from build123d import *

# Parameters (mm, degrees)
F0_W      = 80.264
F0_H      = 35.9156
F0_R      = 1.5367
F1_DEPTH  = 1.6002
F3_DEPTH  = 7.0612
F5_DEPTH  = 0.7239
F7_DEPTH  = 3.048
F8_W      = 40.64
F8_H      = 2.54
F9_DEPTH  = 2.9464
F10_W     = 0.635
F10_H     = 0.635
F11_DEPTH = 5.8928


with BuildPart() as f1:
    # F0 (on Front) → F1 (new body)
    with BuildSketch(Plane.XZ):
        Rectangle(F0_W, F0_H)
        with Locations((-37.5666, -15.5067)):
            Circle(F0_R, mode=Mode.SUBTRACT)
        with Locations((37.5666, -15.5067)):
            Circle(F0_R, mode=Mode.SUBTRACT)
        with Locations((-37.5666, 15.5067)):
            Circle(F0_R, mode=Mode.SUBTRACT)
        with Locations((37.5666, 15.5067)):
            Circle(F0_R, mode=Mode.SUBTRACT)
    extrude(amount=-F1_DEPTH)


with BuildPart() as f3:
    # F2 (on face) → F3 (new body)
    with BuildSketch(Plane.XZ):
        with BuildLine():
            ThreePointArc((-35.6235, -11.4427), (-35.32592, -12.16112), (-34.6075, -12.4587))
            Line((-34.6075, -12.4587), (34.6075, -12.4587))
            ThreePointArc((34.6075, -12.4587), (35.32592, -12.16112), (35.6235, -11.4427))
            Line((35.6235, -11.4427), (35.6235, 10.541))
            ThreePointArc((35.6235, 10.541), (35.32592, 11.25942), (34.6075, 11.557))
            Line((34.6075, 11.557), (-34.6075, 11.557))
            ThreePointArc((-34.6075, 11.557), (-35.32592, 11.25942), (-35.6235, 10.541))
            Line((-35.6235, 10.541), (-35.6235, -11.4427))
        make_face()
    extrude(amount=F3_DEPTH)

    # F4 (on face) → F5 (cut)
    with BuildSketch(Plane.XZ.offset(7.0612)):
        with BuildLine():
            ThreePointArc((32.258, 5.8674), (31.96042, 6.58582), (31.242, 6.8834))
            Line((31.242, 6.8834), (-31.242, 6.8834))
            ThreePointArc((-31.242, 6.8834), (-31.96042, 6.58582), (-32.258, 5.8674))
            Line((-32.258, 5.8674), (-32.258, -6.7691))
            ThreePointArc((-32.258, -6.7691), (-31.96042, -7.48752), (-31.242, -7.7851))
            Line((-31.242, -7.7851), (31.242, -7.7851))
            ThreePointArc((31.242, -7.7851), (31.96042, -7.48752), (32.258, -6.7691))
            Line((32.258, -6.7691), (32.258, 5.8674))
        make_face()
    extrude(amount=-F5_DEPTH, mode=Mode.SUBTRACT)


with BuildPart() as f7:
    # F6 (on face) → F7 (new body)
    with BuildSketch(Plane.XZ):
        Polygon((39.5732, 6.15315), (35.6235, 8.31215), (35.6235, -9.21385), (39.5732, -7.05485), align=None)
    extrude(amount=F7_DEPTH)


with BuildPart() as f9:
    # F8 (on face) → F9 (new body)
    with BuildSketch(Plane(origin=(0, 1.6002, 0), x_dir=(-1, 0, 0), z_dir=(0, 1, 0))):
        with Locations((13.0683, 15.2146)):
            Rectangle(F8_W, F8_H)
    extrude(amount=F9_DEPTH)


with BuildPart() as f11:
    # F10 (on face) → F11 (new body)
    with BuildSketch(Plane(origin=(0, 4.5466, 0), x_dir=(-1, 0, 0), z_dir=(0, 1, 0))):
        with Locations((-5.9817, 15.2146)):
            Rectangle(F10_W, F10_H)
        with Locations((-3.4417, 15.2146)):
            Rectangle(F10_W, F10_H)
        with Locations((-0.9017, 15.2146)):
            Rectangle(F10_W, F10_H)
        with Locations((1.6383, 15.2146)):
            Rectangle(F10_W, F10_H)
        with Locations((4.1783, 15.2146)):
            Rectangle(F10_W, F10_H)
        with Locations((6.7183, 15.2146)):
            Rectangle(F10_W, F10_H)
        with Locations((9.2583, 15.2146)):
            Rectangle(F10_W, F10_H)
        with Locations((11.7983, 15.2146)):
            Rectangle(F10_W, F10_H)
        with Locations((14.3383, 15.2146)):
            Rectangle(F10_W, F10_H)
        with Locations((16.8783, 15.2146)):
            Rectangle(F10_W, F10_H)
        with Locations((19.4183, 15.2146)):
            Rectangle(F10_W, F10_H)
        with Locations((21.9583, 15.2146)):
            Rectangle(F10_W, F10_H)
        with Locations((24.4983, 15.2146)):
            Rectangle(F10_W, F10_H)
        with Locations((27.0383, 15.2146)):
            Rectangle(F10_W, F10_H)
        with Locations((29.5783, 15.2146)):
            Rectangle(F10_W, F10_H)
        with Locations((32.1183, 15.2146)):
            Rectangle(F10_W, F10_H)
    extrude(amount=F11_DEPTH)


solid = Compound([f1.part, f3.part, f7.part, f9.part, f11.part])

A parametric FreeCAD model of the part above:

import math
import FreeCAD as App
import Part
import Sketcher

V = App.Vector
Q = App.Units.Quantity


def add_polygon(sketch, points):
    """Adds a closed chain of lines whose ends are joined by coincident constraints."""
    first, n = sketch.GeometryCount, len(points)
    for a, b in zip(points, points[1:] + points[:1]):
        sketch.addGeometry(Part.LineSegment(App.Vector(*a, 0), App.Vector(*b, 0)), False)
    for i in range(n):
        sketch.addConstraint(Sketcher.Constraint("Coincident", first + i, 2, first + (i + 1) % n, 1))

doc = App.newDocument("Part")
params = doc.addObject("Spreadsheet::Sheet", "Params")
for row, (alias, value) in enumerate([
    ("sketch1_diameter", "0.121 in"),
    ("sketch1_width", "3.16 in"),
    ("sketch1_height", "1.414 in"),
    ("pad1_length", "0.063 in"),
    ("sketch2_radius", "0.0400001 in"),
    ("sketch2_width", "2.725 in"),
    ("pad2_length", "0.278 in"),
    ("sketch3_radius", "0.0400001 in"),
    ("sketch3_width", "2.46 in"),
    ("pocket1_length", "0.0285 in"),
    ("sketch4_height", "0.69 in"),
    ("sketch4_height2", "0.52 in"),
    ("pad3_length", "0.12 in"),
    ("sketch5_width", "1.6 in"),
    ("sketch5_height", "0.1 in"),
    ("pad4_length", "0.116 in"),
    ("sketch6_width", "0.025 in"),
    ("pad5_length", "0.232 in"),
], start=1):
    params.set(f"A{row}", alias)
    params.set(f"B{row}", "=" + value)
    params.setAlias(f"B{row}", alias)

body = doc.addObject("PartDesign::Body", "Body")

# Sketch on XZ plane
sketch1 = body.newObject("Sketcher::SketchObject", "Sketch")
sketch1.AttachmentSupport = (doc.getObject("XZ_Plane"), [""])
sketch1.MapMode = "FlatFace"
add_polygon(sketch1, [(-40.1, 18), (-40.1, -18), (40.1, -18), (40.1, 18)])  # lines 0-3
sketch1.addGeometry(Part.Circle(V(-37.6, -15.5, 0), V(0, 0, 1), 1.5), False)  # 4
sketch1.addGeometry(Part.Circle(V(37.6, -15.5, 0), V(0, 0, 1), 1.5), False)  # 5
sketch1.addGeometry(Part.Circle(V(-37.6, 15.5, 0), V(0, 0, 1), 1.5), False)  # 6
sketch1.addGeometry(Part.Circle(V(37.6, 15.5, 0), V(0, 0, 1), 1.5), False)  # 7
sketch1.addConstraint(Sketcher.Constraint("Vertical", 0))
sketch1.addConstraint(Sketcher.Constraint("Horizontal", 1))
sketch1.addConstraint(Sketcher.Constraint("Vertical", 2))
sketch1.addConstraint(Sketcher.Constraint("Horizontal", 3))
sketch1.addConstraint(Sketcher.Constraint("Equal", 4, 5))
sketch1.addConstraint(Sketcher.Constraint("Equal", 5, 6))
sketch1.addConstraint(Sketcher.Constraint("Equal", 6, 7))
sketch1.addConstraint(Sketcher.Constraint("Symmetric", 5, 3, 6, 3, -1, 1))
sketch1.addConstraint(Sketcher.Constraint("Symmetric", 4, 3, 7, 3, -1, 1))
sketch1.addConstraint(Sketcher.Constraint("Symmetric", 0, 2, 2, 2, -1, 1))
sketch1.addConstraint(Sketcher.Constraint("Symmetric", 4, 3, 5, 3, -2))
sketch1.addConstraint(Sketcher.Constraint("Diameter", 4, Q("0.121 in")))
sketch1.addConstraint(Sketcher.Constraint("DistanceX", 1, 1, 1, 2, Q("3.16 in")))
sketch1.addConstraint(Sketcher.Constraint("DistanceY", 0, 2, 0, 1, Q("1.414 in")))
sketch1.addConstraint(Sketcher.Constraint("DistanceX", 4, 3, -1, 1, Q("1.479 in")))
sketch1.addConstraint(Sketcher.Constraint("DistanceY", 4, 3, 6, 3, Q("1.221 in")))
sketch1.setExpression("Constraints[15]", "Params.sketch1_diameter")
sketch1.setExpression("Constraints[16]", "Params.sketch1_width")
sketch1.setExpression("Constraints[17]", "Params.sketch1_height")
pad1 = body.newObject("PartDesign::Pad", "Pad")
pad1.Profile = sketch1
pad1.setExpression("Length", "Params.pad1_length")
pad1.Reversed = True
body2 = doc.addObject("PartDesign::Body", "Body001")

# Sketch on XZ plane
sketch2 = body2.newObject("Sketcher::SketchObject", "Sketch001")
sketch2.AttachmentSupport = (doc.getObject("XZ_Plane001"), [""])
sketch2.MapMode = "FlatFace"
sketch2.addGeometry(Part.ArcOfCircle(Part.Circle(V(-34.6, -11.4, 0), V(0, 0, 1), 1), math.radians(-180), math.radians(-90)), False)
sketch2.addGeometry(Part.LineSegment(V(-34.6, -12.5, 0), V(34.6, -12.5, 0)), False)
sketch2.addGeometry(Part.ArcOfCircle(Part.Circle(V(34.6, -11.4, 0), V(0, 0, 1), 1), math.radians(-90), math.radians(0)), False)
sketch2.addGeometry(Part.LineSegment(V(35.6, -11.4, 0), V(35.6, 10.5, 0)), False)
sketch2.addGeometry(Part.ArcOfCircle(Part.Circle(V(34.6, 10.5, 0), V(0, 0, 1), 1), math.radians(0), math.radians(90)), False)
sketch2.addGeometry(Part.LineSegment(V(34.6, 11.6, 0), V(-34.6, 11.6, 0)), False)
sketch2.addGeometry(Part.ArcOfCircle(Part.Circle(V(-34.6, 10.5, 0), V(0, 0, 1), 1), math.radians(90), math.radians(180)), False)
sketch2.addGeometry(Part.LineSegment(V(-35.6, 10.5, 0), V(-35.6, -11.4, 0)), False)
sketch2.addConstraint(Sketcher.Constraint("Tangent", 0, 2, 1, 1))
sketch2.addConstraint(Sketcher.Constraint("Tangent", 1, 2, 2, 1))
sketch2.addConstraint(Sketcher.Constraint("Tangent", 2, 2, 3, 1))
sketch2.addConstraint(Sketcher.Constraint("Tangent", 3, 2, 4, 1))
sketch2.addConstraint(Sketcher.Constraint("Tangent", 4, 2, 5, 1))
sketch2.addConstraint(Sketcher.Constraint("Tangent", 5, 2, 6, 1))
sketch2.addConstraint(Sketcher.Constraint("Tangent", 6, 2, 7, 1))
sketch2.addConstraint(Sketcher.Constraint("Tangent", 7, 2, 0, 1))
sketch2.addConstraint(Sketcher.Constraint("Horizontal", 1))
sketch2.addConstraint(Sketcher.Constraint("Vertical", 3))
sketch2.addConstraint(Sketcher.Constraint("Horizontal", 5))
sketch2.addConstraint(Sketcher.Constraint("Vertical", 7))
sketch2.addConstraint(Sketcher.Constraint("Equal", 0, 2))
sketch2.addConstraint(Sketcher.Constraint("Equal", 2, 4))
sketch2.addConstraint(Sketcher.Constraint("Equal", 4, 6))
sketch2.addConstraint(Sketcher.Constraint("Radius", 0, Q("0.0400001 in")))
sketch2.addConstraint(Sketcher.Constraint("DistanceX", 1, 1, 1, 2, Q("2.725 in")))
sketch2.addConstraint(Sketcher.Constraint("DistanceY", 3, 1, 3, 2, Q("0.8655 in")))
sketch2.addConstraint(Sketcher.Constraint("DistanceY", -1, 1, 4, 3, Q("0.4149999 in")))
sketch2.addConstraint(Sketcher.Constraint("DistanceX", 0, 3, -1, 1, Q("1.3624999 in")))
sketch2.setExpression("Constraints[15]", "Params.sketch2_radius")
sketch2.setExpression("Constraints[16]", "Params.sketch2_width")
pad2 = body2.newObject("PartDesign::Pad", "Pad001")
pad2.Profile = sketch2
pad2.setExpression("Length", "Params.pad2_length")

# Sketch on XZ plane
sketch3 = body2.newObject("Sketcher::SketchObject", "Sketch002")
sketch3.AttachmentSupport = (doc.getObject("XZ_Plane001"), [""])
sketch3.MapMode = "FlatFace"
sketch3.AttachmentOffset = App.Placement(V(0, 0, 0.278 * 25.4), App.Rotation())
sketch3.addGeometry(Part.ArcOfCircle(Part.Circle(V(31.2, 5.9, 0), V(0, 0, 1), 1), math.radians(0), math.radians(90)), False)
sketch3.addGeometry(Part.LineSegment(V(31.2, 6.9, 0), V(-31.2, 6.9, 0)), False)
sketch3.addGeometry(Part.ArcOfCircle(Part.Circle(V(-31.2, 5.9, 0), V(0, 0, 1), 1), math.radians(90), math.radians(180)), False)
sketch3.addGeometry(Part.LineSegment(V(-32.3, 5.9, 0), V(-32.3, -6.8, 0)), False)
sketch3.addGeometry(Part.ArcOfCircle(Part.Circle(V(-31.2, -6.8, 0), V(0, 0, 1), 1), math.radians(-180), math.radians(-90)), False)
sketch3.addGeometry(Part.LineSegment(V(-31.2, -7.8, 0), V(31.2, -7.8, 0)), False)
sketch3.addGeometry(Part.ArcOfCircle(Part.Circle(V(31.2, -6.8, 0), V(0, 0, 1), 1), math.radians(-90), math.radians(0)), False)
sketch3.addGeometry(Part.LineSegment(V(32.3, -6.8, 0), V(32.3, 5.9, 0)), False)
sketch3.addConstraint(Sketcher.Constraint("Tangent", 0, 2, 1, 1))
sketch3.addConstraint(Sketcher.Constraint("Tangent", 1, 2, 2, 1))
sketch3.addConstraint(Sketcher.Constraint("Tangent", 2, 2, 3, 1))
sketch3.addConstraint(Sketcher.Constraint("Tangent", 3, 2, 4, 1))
sketch3.addConstraint(Sketcher.Constraint("Tangent", 4, 2, 5, 1))
sketch3.addConstraint(Sketcher.Constraint("Tangent", 5, 2, 6, 1))
sketch3.addConstraint(Sketcher.Constraint("Tangent", 6, 2, 7, 1))
sketch3.addConstraint(Sketcher.Constraint("Tangent", 7, 2, 0, 1))
sketch3.addConstraint(Sketcher.Constraint("Horizontal", 1))
sketch3.addConstraint(Sketcher.Constraint("Vertical", 3))
sketch3.addConstraint(Sketcher.Constraint("Horizontal", 5))
sketch3.addConstraint(Sketcher.Constraint("Vertical", 7))
sketch3.addConstraint(Sketcher.Constraint("Equal", 0, 2))
sketch3.addConstraint(Sketcher.Constraint("Equal", 2, 4))
sketch3.addConstraint(Sketcher.Constraint("Equal", 4, 6))
sketch3.addConstraint(Sketcher.Constraint("Radius", 0, Q("0.0400001 in")))
sketch3.addConstraint(Sketcher.Constraint("DistanceX", 1, 2, 1, 1, Q("2.46 in")))
sketch3.addConstraint(Sketcher.Constraint("DistanceX", -1, 1, 0, 3, Q("1.2299999 in")))
sketch3.addConstraint(Sketcher.Constraint("DistanceY", 3, 2, 3, 1, Q("0.4975 in")))
sketch3.addConstraint(Sketcher.Constraint("DistanceY", -1, 1, 0, 3, Q("0.2309999 in")))
sketch3.setExpression("Constraints[15]", "Params.sketch3_radius")
sketch3.setExpression("Constraints[16]", "Params.sketch3_width")
pocket1 = body2.newObject("PartDesign::Pocket", "Pocket")
pocket1.Profile = sketch3
pocket1.setExpression("Length", "Params.pocket1_length")
body3 = doc.addObject("PartDesign::Body", "Body002")

# Sketch on XZ plane
sketch4 = body3.newObject("Sketcher::SketchObject", "Sketch003")
sketch4.AttachmentSupport = (doc.getObject("XZ_Plane002"), [""])
sketch4.MapMode = "FlatFace"
add_polygon(sketch4, [(39.6, 6.2), (35.6, 8.3), (35.6, -9.2), (39.6, -7.1)])  # lines 0-3
sketch4.addConstraint(Sketcher.Constraint("Vertical", 1))
sketch4.addConstraint(Sketcher.Constraint("Vertical", 3))
sketch4.addConstraint(Sketcher.Constraint("Equal", 0, 2))
sketch4.addConstraint(Sketcher.Constraint("DistanceY", 1, 2, 1, 1, Q("0.69 in")))
sketch4.addConstraint(Sketcher.Constraint("DistanceY", 3, 1, 3, 2, Q("0.52 in")))
sketch4.addConstraint(Sketcher.Constraint("DistanceX", -1, 1, 2, 2, Q("1.558 in")))
sketch4.addConstraint(Sketcher.Constraint("DistanceX", -1, 1, 0, 2, Q("1.4025 in")))
sketch4.addConstraint(Sketcher.Constraint("DistanceY", -1, 1, 0, 2, 8.31215))
sketch4.setExpression("Constraints[7]", "Params.sketch4_height")
sketch4.setExpression("Constraints[8]", "Params.sketch4_height2")
pad3 = body3.newObject("PartDesign::Pad", "Pad002")
pad3.Profile = sketch4
pad3.setExpression("Length", "Params.pad3_length")
body4 = doc.addObject("PartDesign::Body", "Body003")

# Sketch on XZ plane
sketch5 = body4.newObject("Sketcher::SketchObject", "Sketch004")
sketch5.AttachmentSupport = (doc.getObject("XZ_Plane003"), [""])
sketch5.MapMode = "FlatFace"
sketch5.AttachmentOffset = App.Placement(V(0, 0, -0.063 * 25.4), App.Rotation())
add_polygon(sketch5, [(7.3, 16.5), (7.3, 13.9), (-33.4, 13.9), (-33.4, 16.5)])  # lines 0-3
sketch5.addConstraint(Sketcher.Constraint("Vertical", 0))
sketch5.addConstraint(Sketcher.Constraint("Horizontal", 1))
sketch5.addConstraint(Sketcher.Constraint("Vertical", 2))
sketch5.addConstraint(Sketcher.Constraint("Horizontal", 3))
sketch5.addConstraint(Sketcher.Constraint("DistanceX", 1, 2, 1, 1, Q("1.6 in")))
sketch5.addConstraint(Sketcher.Constraint("DistanceY", 0, 2, 0, 1, Q("0.1 in")))
sketch5.addConstraint(Sketcher.Constraint("DistanceY", -1, 1, 0, 2, Q("0.549 in")))
sketch5.addConstraint(Sketcher.Constraint("DistanceX", -1, 1, 0, 2, Q("0.2855 in")))
sketch5.setExpression("Constraints[8]", "Params.sketch5_width")
sketch5.setExpression("Constraints[9]", "Params.sketch5_height")
pad4 = body4.newObject("PartDesign::Pad", "Pad003")
pad4.Profile = sketch5
pad4.setExpression("Length", "Params.pad4_length")
pad4.Reversed = True
body5 = doc.addObject("PartDesign::Body", "Body004")
body5.AllowCompound = True

# Sketch on XZ plane
sketch6 = body5.newObject("Sketcher::SketchObject", "Sketch005")
sketch6.AttachmentSupport = (doc.getObject("XZ_Plane004"), [""])
sketch6.MapMode = "FlatFace"
sketch6.AttachmentOffset = App.Placement(V(0, 0, -0.179 * 25.4), App.Rotation())
add_polygon(sketch6, [(6.3, 15.5), (6.3, 14.9), (5.7, 14.9), (5.7, 15.5)])  # lines 0-3
add_polygon(sketch6, [(3.8, 15.5), (3.8, 14.9), (3.1, 14.9), (3.1, 15.5)])  # lines 4-7
add_polygon(sketch6, [(1.2, 15.5), (1.2, 14.9), (0.6, 14.9), (0.6, 15.5)])  # lines 8-11
add_polygon(sketch6, [(-1.3, 15.5), (-1.3, 14.9), (-2, 14.9), (-2, 15.5)])  # lines 12-15
add_polygon(sketch6, [(-3.9, 15.5), (-3.9, 14.9), (-4.5, 14.9), (-4.5, 15.5)])  # lines 16-19
add_polygon(sketch6, [(-6.4, 15.5), (-6.4, 14.9), (-7, 14.9), (-7, 15.5)])  # lines 20-23
add_polygon(sketch6, [(-8.9, 15.5), (-8.9, 14.9), (-9.6, 14.9), (-9.6, 15.5)])  # lines 24-27
add_polygon(sketch6, [(-11.5, 15.5), (-11.5, 14.9), (-12.1, 14.9), (-12.1, 15.5)])  # lines 28-31
add_polygon(sketch6, [(-14, 15.5), (-14, 14.9), (-14.7, 14.9), (-14.7, 15.5)])  # lines 32-35
add_polygon(sketch6, [(-16.6, 15.5), (-16.6, 14.9), (-17.2, 14.9), (-17.2, 15.5)])  # lines 36-39
add_polygon(sketch6, [(-19.1, 15.5), (-19.1, 14.9), (-19.7, 14.9), (-19.7, 15.5)])  # lines 40-43
add_polygon(sketch6, [(-21.6, 15.5), (-21.6, 14.9), (-22.3, 14.9), (-22.3, 15.5)])  # lines 44-47
add_polygon(sketch6, [(-24.2, 15.5), (-24.2, 14.9), (-24.8, 14.9), (-24.8, 15.5)])  # lines 48-51
add_polygon(sketch6, [(-26.7, 15.5), (-26.7, 14.9), (-27.4, 14.9), (-27.4, 15.5)])  # lines 52-55
add_polygon(sketch6, [(-29.3, 15.5), (-29.3, 14.9), (-29.9, 14.9), (-29.9, 15.5)])  # lines 56-59
add_polygon(sketch6, [(-31.8, 15.5), (-31.8, 14.9), (-32.4, 14.9), (-32.4, 15.5)])  # lines 60-63
sketch6.addConstraint(Sketcher.Constraint("Vertical", 0))
sketch6.addConstraint(Sketcher.Constraint("Horizontal", 1))
sketch6.addConstraint(Sketcher.Constraint("Vertical", 2))
sketch6.addConstraint(Sketcher.Constraint("Horizontal", 3))
sketch6.addConstraint(Sketcher.Constraint("Vertical", 4))
sketch6.addConstraint(Sketcher.Constraint("Horizontal", 5))
sketch6.addConstraint(Sketcher.Constraint("Vertical", 6))
sketch6.addConstraint(Sketcher.Constraint("Horizontal", 7))
sketch6.addConstraint(Sketcher.Constraint("Vertical", 8))
sketch6.addConstraint(Sketcher.Constraint("Horizontal", 9))
sketch6.addConstraint(Sketcher.Constraint("Vertical", 10))
sketch6.addConstraint(Sketcher.Constraint("Horizontal", 11))
sketch6.addConstraint(Sketcher.Constraint("Vertical", 12))
sketch6.addConstraint(Sketcher.Constraint("Horizontal", 13))
sketch6.addConstraint(Sketcher.Constraint("Vertical", 14))
sketch6.addConstraint(Sketcher.Constraint("Horizontal", 15))
sketch6.addConstraint(Sketcher.Constraint("Vertical", 16))
sketch6.addConstraint(Sketcher.Constraint("Horizontal", 17))
sketch6.addConstraint(Sketcher.Constraint("Vertical", 18))
sketch6.addConstraint(Sketcher.Constraint("Horizontal", 19))
sketch6.addConstraint(Sketcher.Constraint("Vertical", 20))
sketch6.addConstraint(Sketcher.Constraint("Horizontal", 21))
sketch6.addConstraint(Sketcher.Constraint("Vertical", 22))
sketch6.addConstraint(Sketcher.Constraint("Horizontal", 23))
sketch6.addConstraint(Sketcher.Constraint("Vertical", 24))
sketch6.addConstraint(Sketcher.Constraint("Horizontal", 25))
sketch6.addConstraint(Sketcher.Constraint("Vertical", 26))
sketch6.addConstraint(Sketcher.Constraint("Horizontal", 27))
sketch6.addConstraint(Sketcher.Constraint("Vertical", 28))
sketch6.addConstraint(Sketcher.Constraint("Horizontal", 29))
sketch6.addConstraint(Sketcher.Constraint("Vertical", 30))
sketch6.addConstraint(Sketcher.Constraint("Horizontal", 31))
sketch6.addConstraint(Sketcher.Constraint("Vertical", 32))
sketch6.addConstraint(Sketcher.Constraint("Horizontal", 33))
sketch6.addConstraint(Sketcher.Constraint("Vertical", 34))
sketch6.addConstraint(Sketcher.Constraint("Horizontal", 35))
sketch6.addConstraint(Sketcher.Constraint("Vertical", 36))
sketch6.addConstraint(Sketcher.Constraint("Horizontal", 37))
sketch6.addConstraint(Sketcher.Constraint("Vertical", 38))
sketch6.addConstraint(Sketcher.Constraint("Horizontal", 39))
sketch6.addConstraint(Sketcher.Constraint("Vertical", 40))
sketch6.addConstraint(Sketcher.Constraint("Horizontal", 41))
sketch6.addConstraint(Sketcher.Constraint("Vertical", 42))
sketch6.addConstraint(Sketcher.Constraint("Horizontal", 43))
sketch6.addConstraint(Sketcher.Constraint("Vertical", 44))
sketch6.addConstraint(Sketcher.Constraint("Horizontal", 45))
sketch6.addConstraint(Sketcher.Constraint("Vertical", 46))
sketch6.addConstraint(Sketcher.Constraint("Horizontal", 47))
sketch6.addConstraint(Sketcher.Constraint("Vertical", 48))
sketch6.addConstraint(Sketcher.Constraint("Horizontal", 49))
sketch6.addConstraint(Sketcher.Constraint("Vertical", 50))
sketch6.addConstraint(Sketcher.Constraint("Horizontal", 51))
sketch6.addConstraint(Sketcher.Constraint("Vertical", 52))
sketch6.addConstraint(Sketcher.Constraint("Horizontal", 53))
sketch6.addConstraint(Sketcher.Constraint("Vertical", 54))
sketch6.addConstraint(Sketcher.Constraint("Horizontal", 55))
sketch6.addConstraint(Sketcher.Constraint("Vertical", 56))
sketch6.addConstraint(Sketcher.Constraint("Horizontal", 57))
sketch6.addConstraint(Sketcher.Constraint("Vertical", 58))
sketch6.addConstraint(Sketcher.Constraint("Horizontal", 59))
sketch6.addConstraint(Sketcher.Constraint("Vertical", 60))
sketch6.addConstraint(Sketcher.Constraint("Horizontal", 61))
sketch6.addConstraint(Sketcher.Constraint("Vertical", 62))
sketch6.addConstraint(Sketcher.Constraint("Horizontal", 63))
sketch6.addConstraint(Sketcher.Constraint("Horizontal", 1, 2, 4, 2))
sketch6.addConstraint(Sketcher.Constraint("Horizontal", 3, 2, 6, 2))
sketch6.addConstraint(Sketcher.Constraint("Horizontal", 5, 2, 8, 2))
sketch6.addConstraint(Sketcher.Constraint("Horizontal", 7, 2, 10, 2))
sketch6.addConstraint(Sketcher.Constraint("Horizontal", 9, 2, 12, 2))
sketch6.addConstraint(Sketcher.Constraint("Horizontal", 11, 2, 14, 2))
sketch6.addConstraint(Sketcher.Constraint("Horizontal", 13, 2, 16, 2))
sketch6.addConstraint(Sketcher.Constraint("Horizontal", 15, 2, 18, 2))
sketch6.addConstraint(Sketcher.Constraint("Horizontal", 17, 2, 20, 2))
sketch6.addConstraint(Sketcher.Constraint("Horizontal", 19, 2, 22, 2))
sketch6.addConstraint(Sketcher.Constraint("Horizontal", 21, 2, 24, 2))
sketch6.addConstraint(Sketcher.Constraint("Horizontal", 23, 2, 26, 2))
sketch6.addConstraint(Sketcher.Constraint("Horizontal", 25, 2, 28, 2))
sketch6.addConstraint(Sketcher.Constraint("Horizontal", 27, 2, 30, 2))
sketch6.addConstraint(Sketcher.Constraint("Horizontal", 29, 2, 32, 2))
sketch6.addConstraint(Sketcher.Constraint("Horizontal", 31, 2, 34, 2))
sketch6.addConstraint(Sketcher.Constraint("Horizontal", 33, 2, 36, 2))
sketch6.addConstraint(Sketcher.Constraint("Horizontal", 35, 2, 38, 2))
sketch6.addConstraint(Sketcher.Constraint("Horizontal", 37, 2, 40, 2))
sketch6.addConstraint(Sketcher.Constraint("Horizontal", 39, 2, 42, 2))
sketch6.addConstraint(Sketcher.Constraint("Horizontal", 41, 2, 44, 2))
sketch6.addConstraint(Sketcher.Constraint("Horizontal", 43, 2, 46, 2))
sketch6.addConstraint(Sketcher.Constraint("Horizontal", 45, 2, 48, 2))
sketch6.addConstraint(Sketcher.Constraint("Horizontal", 47, 2, 50, 2))
sketch6.addConstraint(Sketcher.Constraint("Horizontal", 49, 2, 52, 2))
sketch6.addConstraint(Sketcher.Constraint("Horizontal", 51, 2, 54, 2))
sketch6.addConstraint(Sketcher.Constraint("Horizontal", 53, 2, 56, 2))
sketch6.addConstraint(Sketcher.Constraint("Horizontal", 55, 2, 58, 2))
sketch6.addConstraint(Sketcher.Constraint("Horizontal", 57, 2, 60, 2))
sketch6.addConstraint(Sketcher.Constraint("Horizontal", 59, 2, 62, 2))
sketch6.addConstraint(Sketcher.Constraint("Equal", 3, 5))
sketch6.addConstraint(Sketcher.Constraint("Equal", 7, 9))
sketch6.addConstraint(Sketcher.Constraint("Equal", 11, 13))
sketch6.addConstraint(Sketcher.Constraint("Equal", 15, 17))
sketch6.addConstraint(Sketcher.Constraint("Equal", 19, 21))
sketch6.addConstraint(Sketcher.Constraint("Equal", 23, 25))
sketch6.addConstraint(Sketcher.Constraint("Equal", 27, 29))
sketch6.addConstraint(Sketcher.Constraint("Equal", 31, 33))
sketch6.addConstraint(Sketcher.Constraint("Equal", 35, 37))
sketch6.addConstraint(Sketcher.Constraint("Equal", 39, 41))
sketch6.addConstraint(Sketcher.Constraint("Equal", 43, 45))
sketch6.addConstraint(Sketcher.Constraint("Equal", 47, 49))
sketch6.addConstraint(Sketcher.Constraint("Equal", 51, 53))
sketch6.addConstraint(Sketcher.Constraint("Equal", 55, 57))
sketch6.addConstraint(Sketcher.Constraint("Equal", 59, 61))
sketch6.addConstraint(Sketcher.Constraint("Equal", 63, 0))
sketch6.addConstraint(Sketcher.Constraint("DistanceX", 1, 2, 1, 1, Q("0.025 in")))
sketch6.addConstraint(Sketcher.Constraint("DistanceX", -1, 1, 0, 2, Q("0.248 in")))
sketch6.addConstraint(Sketcher.Constraint("DistanceX", -1, 1, 4, 2, Q("0.148 in")))
sketch6.addConstraint(Sketcher.Constraint("DistanceX", -1, 1, 8, 2, Q("0.048 in")))
sketch6.addConstraint(Sketcher.Constraint("DistanceX", 12, 2, -1, 1, Q("0.052 in")))
sketch6.addConstraint(Sketcher.Constraint("DistanceX", 16, 2, -1, 1, Q("0.152 in")))
sketch6.addConstraint(Sketcher.Constraint("DistanceX", 20, 2, -1, 1, Q("0.252 in")))
sketch6.addConstraint(Sketcher.Constraint("DistanceX", 24, 2, -1, 1, Q("0.352 in")))
sketch6.addConstraint(Sketcher.Constraint("DistanceX", 28, 2, -1, 1, Q("0.452 in")))
sketch6.addConstraint(Sketcher.Constraint("DistanceX", 32, 2, -1, 1, Q("0.552 in")))
sketch6.addConstraint(Sketcher.Constraint("DistanceX", 36, 2, -1, 1, Q("0.652 in")))
sketch6.addConstraint(Sketcher.Constraint("DistanceX", 40, 2, -1, 1, Q("0.752 in")))
sketch6.addConstraint(Sketcher.Constraint("DistanceX", 44, 2, -1, 1, Q("0.852 in")))
sketch6.addConstraint(Sketcher.Constraint("DistanceX", 48, 2, -1, 1, Q("0.952 in")))
sketch6.addConstraint(Sketcher.Constraint("DistanceX", 52, 2, -1, 1, Q("1.052 in")))
sketch6.addConstraint(Sketcher.Constraint("DistanceX", 56, 2, -1, 1, Q("1.152 in")))
sketch6.addConstraint(Sketcher.Constraint("DistanceX", 60, 2, -1, 1, Q("1.252 in")))
sketch6.addConstraint(Sketcher.Constraint("DistanceY", -1, 1, 0, 2, Q("0.5865 in")))
sketch6.setExpression("Constraints[174]", "Params.sketch6_width")
pad5 = body5.newObject("PartDesign::Pad", "Pad004")
pad5.Profile = sketch6
pad5.setExpression("Length", "Params.pad5_length")
pad5.Reversed = True

doc.recompute()
